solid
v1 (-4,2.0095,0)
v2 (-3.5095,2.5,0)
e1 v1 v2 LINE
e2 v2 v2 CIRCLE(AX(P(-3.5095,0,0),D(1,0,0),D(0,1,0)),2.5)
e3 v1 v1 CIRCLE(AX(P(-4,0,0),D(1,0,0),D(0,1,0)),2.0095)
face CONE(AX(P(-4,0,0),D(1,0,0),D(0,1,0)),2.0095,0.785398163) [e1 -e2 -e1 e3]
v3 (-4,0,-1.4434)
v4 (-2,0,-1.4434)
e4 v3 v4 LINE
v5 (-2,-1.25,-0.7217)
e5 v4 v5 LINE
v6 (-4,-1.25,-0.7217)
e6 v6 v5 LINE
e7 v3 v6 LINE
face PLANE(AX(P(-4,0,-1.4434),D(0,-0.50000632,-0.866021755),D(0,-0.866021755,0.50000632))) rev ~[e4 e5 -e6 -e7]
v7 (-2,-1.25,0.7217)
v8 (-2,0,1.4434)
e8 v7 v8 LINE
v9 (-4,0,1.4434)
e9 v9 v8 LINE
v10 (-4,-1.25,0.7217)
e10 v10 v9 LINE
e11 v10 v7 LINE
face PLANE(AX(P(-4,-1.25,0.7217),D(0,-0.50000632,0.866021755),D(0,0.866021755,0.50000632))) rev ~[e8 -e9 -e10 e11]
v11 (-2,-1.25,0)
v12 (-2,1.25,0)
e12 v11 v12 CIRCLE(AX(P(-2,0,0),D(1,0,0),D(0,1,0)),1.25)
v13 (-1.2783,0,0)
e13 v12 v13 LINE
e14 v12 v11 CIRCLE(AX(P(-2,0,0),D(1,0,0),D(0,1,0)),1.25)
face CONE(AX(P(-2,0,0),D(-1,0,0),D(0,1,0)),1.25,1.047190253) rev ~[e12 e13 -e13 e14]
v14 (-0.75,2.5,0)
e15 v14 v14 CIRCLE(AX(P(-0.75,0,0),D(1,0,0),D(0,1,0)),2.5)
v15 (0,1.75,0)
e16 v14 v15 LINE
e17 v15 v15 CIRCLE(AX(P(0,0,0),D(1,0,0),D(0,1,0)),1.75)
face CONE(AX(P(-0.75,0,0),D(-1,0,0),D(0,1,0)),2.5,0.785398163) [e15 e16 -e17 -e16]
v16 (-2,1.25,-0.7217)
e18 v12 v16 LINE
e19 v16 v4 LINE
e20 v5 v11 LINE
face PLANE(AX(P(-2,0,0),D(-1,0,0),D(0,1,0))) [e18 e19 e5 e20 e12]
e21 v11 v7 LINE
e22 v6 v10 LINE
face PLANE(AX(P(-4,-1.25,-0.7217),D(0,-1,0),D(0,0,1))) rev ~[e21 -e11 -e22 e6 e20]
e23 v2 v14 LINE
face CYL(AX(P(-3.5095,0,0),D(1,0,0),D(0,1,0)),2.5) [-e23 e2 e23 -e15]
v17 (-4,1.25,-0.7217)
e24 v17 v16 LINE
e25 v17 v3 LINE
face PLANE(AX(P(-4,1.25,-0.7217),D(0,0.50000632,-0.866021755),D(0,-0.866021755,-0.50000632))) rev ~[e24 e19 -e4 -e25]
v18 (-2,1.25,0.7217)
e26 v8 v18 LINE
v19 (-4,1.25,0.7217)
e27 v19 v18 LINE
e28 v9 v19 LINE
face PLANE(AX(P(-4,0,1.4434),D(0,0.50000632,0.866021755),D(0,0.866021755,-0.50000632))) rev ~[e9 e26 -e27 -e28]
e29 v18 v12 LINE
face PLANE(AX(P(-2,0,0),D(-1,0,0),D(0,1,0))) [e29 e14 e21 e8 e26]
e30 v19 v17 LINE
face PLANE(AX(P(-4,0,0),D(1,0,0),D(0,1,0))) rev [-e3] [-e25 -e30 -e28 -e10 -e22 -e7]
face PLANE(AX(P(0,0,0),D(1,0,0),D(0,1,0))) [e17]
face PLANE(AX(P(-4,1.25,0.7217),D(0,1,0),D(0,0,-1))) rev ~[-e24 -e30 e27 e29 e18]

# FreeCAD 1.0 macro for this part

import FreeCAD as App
import Part
import Sketcher
from FreeCAD import Vector
Q = App.Units.Quantity


def add_polygon(sketch, points):
    """Adds a closed chain of lines whose ends are joined by coincident constraints."""
    first, n = sketch.GeometryCount, len(points)
    for a, b in zip(points, points[1:] + points[:1]):
        sketch.addGeometry(Part.LineSegment(App.Vector(*a, 0), App.Vector(*b, 0)), False)
    for i in range(n):
        sketch.addConstraint(Sketcher.Constraint("Coincident", first + i, 2, first + (i + 1) % n, 1))

doc = App.newDocument("Part")
body = doc.addObject("PartDesign::Body", "Body")

# Sketch on XY plane
sketch1 = body.newObject("Sketcher::SketchObject", "Sketch")
sketch1.AttachmentSupport = (doc.getObject("XY_Plane"), [""])
sketch1.MapMode = "FlatFace"
add_polygon(sketch1, [(-4, 0), (0, 0), (0, 1.8), (-0.8, 2.5), (-3.5, 2.5), (-4, 2)])  # lines 0-5
sketch1.addConstraint(Sketcher.Constraint("Horizontal", 0))
sketch1.addConstraint(Sketcher.Constraint("Vertical", 1))
sketch1.addConstraint(Sketcher.Constraint("Horizontal", 3))
sketch1.addConstraint(Sketcher.Constraint("Vertical", 5))
sketch1.addConstraint(Sketcher.Constraint("Coincident", 0, 2, -1, 1))
sketch1.addConstraint(Sketcher.Constraint("Perpendicular", 2, 4))
sketch1.addConstraint(Sketcher.Constraint("DistanceX", 0, 1, 0, 2, 4.0))
sketch1.addConstraint(Sketcher.Constraint("Angle", 2, Q("135 deg")))
sketch1.addConstraint(Sketcher.Constraint("DistanceY", 1, 1, 1, 2, 1.75))
sketch1.addConstraint(Sketcher.Constraint("DistanceY", -1, 1, 2, 2, 2.5))
sketch1.addConstraint(Sketcher.Constraint("DistanceX", 3, 2, 3, 1, 2.7595))
revolution = body.newObject("PartDesign::Revolution", "Revolution")
revolution.Profile = sketch1
revolution.ReferenceAxis = (sketch1, ["H_Axis"])
revolution.Angle = 360

# Sketch on YZ plane
sketch2 = body.newObject("Sketcher::SketchObject", "Sketch001")
sketch2.AttachmentSupport = (doc.getObject("YZ_Plane"), [""])
sketch2.MapMode = "FlatFace"
sketch2.AttachmentOffset = App.Placement(Vector(0, 0, -4), App.Rotation())
add_polygon(sketch2, [(0, -1.4), (-1.2, -0.7), (-1.2, 0.7), (0, 1.4), (1.2, 0.7), (1.2, -0.7)])  # lines 0-5
sketch2.addConstraint(Sketcher.Constraint("Vertical", 1))
sketch2.addConstraint(Sketcher.Constraint("Vertical", 4))
sketch2.addConstraint(Sketcher.Constraint("Symmetric", 0, 2, 3, 2, -1, 1))
sketch2.addConstraint(Sketcher.Constraint("Symmetric", 2, 2, 5, 2, -1, 1))
sketch2.addConstraint(Sketcher.Constraint("PointOnObject", 2, 2, -2))
sketch2.addConstraint(Sketcher.Constraint("Parallel", 2, 5))
sketch2.addConstraint(Sketcher.Constraint("Horizontal", 1, 2, 3, 2))
sketch2.addConstraint(Sketcher.Constraint("Angle", 0, Q("149.9996 deg")))
sketch2.addConstraint(Sketcher.Constraint("DistanceX", 1, 2, 3, 2, 2.5))
sketch2.addConstraint(Sketcher.Constraint("DistanceY", 1, 1, 1, 2, 1.4434))
pocket1 = body.newObject("PartDesign::Pocket", "Pocket")
pocket1.Profile = sketch2
pocket1.Length = 2
pocket1.Reversed = True

# Sketch on XY plane
sketch3 = body.newObject("Sketcher::SketchObject", "Sketch002")
sketch3.AttachmentSupport = (doc.getObject("XY_Plane"), [""])
sketch3.MapMode = "FlatFace"
add_polygon(sketch3, [(-2, 0), (-1.3, 0), (-2, 1.2)])  # lines 0-2
sketch3.addConstraint(Sketcher.Constraint("Horizontal", 0))
sketch3.addConstraint(Sketcher.Constraint("Vertical", 2))
sketch3.addConstraint(Sketcher.Constraint("PointOnObject", 0, 2, -1))
sketch3.addConstraint(Sketcher.Constraint("Angle", 1, Q("120.0004 deg")))
sketch3.addConstraint(Sketcher.Constraint("DistanceX", 1, 2, -1, 1, 2.0))
sketch3.addConstraint(Sketcher.Constraint("DistanceY", 2, 2, 2, 1, 1.25))
groove = body.newObject("PartDesign::Groove", "Groove")
groove.Profile = sketch3
groove.ReferenceAxis = (sketch3, ["H_Axis"])
groove.Angle = 360

doc.recompute()
